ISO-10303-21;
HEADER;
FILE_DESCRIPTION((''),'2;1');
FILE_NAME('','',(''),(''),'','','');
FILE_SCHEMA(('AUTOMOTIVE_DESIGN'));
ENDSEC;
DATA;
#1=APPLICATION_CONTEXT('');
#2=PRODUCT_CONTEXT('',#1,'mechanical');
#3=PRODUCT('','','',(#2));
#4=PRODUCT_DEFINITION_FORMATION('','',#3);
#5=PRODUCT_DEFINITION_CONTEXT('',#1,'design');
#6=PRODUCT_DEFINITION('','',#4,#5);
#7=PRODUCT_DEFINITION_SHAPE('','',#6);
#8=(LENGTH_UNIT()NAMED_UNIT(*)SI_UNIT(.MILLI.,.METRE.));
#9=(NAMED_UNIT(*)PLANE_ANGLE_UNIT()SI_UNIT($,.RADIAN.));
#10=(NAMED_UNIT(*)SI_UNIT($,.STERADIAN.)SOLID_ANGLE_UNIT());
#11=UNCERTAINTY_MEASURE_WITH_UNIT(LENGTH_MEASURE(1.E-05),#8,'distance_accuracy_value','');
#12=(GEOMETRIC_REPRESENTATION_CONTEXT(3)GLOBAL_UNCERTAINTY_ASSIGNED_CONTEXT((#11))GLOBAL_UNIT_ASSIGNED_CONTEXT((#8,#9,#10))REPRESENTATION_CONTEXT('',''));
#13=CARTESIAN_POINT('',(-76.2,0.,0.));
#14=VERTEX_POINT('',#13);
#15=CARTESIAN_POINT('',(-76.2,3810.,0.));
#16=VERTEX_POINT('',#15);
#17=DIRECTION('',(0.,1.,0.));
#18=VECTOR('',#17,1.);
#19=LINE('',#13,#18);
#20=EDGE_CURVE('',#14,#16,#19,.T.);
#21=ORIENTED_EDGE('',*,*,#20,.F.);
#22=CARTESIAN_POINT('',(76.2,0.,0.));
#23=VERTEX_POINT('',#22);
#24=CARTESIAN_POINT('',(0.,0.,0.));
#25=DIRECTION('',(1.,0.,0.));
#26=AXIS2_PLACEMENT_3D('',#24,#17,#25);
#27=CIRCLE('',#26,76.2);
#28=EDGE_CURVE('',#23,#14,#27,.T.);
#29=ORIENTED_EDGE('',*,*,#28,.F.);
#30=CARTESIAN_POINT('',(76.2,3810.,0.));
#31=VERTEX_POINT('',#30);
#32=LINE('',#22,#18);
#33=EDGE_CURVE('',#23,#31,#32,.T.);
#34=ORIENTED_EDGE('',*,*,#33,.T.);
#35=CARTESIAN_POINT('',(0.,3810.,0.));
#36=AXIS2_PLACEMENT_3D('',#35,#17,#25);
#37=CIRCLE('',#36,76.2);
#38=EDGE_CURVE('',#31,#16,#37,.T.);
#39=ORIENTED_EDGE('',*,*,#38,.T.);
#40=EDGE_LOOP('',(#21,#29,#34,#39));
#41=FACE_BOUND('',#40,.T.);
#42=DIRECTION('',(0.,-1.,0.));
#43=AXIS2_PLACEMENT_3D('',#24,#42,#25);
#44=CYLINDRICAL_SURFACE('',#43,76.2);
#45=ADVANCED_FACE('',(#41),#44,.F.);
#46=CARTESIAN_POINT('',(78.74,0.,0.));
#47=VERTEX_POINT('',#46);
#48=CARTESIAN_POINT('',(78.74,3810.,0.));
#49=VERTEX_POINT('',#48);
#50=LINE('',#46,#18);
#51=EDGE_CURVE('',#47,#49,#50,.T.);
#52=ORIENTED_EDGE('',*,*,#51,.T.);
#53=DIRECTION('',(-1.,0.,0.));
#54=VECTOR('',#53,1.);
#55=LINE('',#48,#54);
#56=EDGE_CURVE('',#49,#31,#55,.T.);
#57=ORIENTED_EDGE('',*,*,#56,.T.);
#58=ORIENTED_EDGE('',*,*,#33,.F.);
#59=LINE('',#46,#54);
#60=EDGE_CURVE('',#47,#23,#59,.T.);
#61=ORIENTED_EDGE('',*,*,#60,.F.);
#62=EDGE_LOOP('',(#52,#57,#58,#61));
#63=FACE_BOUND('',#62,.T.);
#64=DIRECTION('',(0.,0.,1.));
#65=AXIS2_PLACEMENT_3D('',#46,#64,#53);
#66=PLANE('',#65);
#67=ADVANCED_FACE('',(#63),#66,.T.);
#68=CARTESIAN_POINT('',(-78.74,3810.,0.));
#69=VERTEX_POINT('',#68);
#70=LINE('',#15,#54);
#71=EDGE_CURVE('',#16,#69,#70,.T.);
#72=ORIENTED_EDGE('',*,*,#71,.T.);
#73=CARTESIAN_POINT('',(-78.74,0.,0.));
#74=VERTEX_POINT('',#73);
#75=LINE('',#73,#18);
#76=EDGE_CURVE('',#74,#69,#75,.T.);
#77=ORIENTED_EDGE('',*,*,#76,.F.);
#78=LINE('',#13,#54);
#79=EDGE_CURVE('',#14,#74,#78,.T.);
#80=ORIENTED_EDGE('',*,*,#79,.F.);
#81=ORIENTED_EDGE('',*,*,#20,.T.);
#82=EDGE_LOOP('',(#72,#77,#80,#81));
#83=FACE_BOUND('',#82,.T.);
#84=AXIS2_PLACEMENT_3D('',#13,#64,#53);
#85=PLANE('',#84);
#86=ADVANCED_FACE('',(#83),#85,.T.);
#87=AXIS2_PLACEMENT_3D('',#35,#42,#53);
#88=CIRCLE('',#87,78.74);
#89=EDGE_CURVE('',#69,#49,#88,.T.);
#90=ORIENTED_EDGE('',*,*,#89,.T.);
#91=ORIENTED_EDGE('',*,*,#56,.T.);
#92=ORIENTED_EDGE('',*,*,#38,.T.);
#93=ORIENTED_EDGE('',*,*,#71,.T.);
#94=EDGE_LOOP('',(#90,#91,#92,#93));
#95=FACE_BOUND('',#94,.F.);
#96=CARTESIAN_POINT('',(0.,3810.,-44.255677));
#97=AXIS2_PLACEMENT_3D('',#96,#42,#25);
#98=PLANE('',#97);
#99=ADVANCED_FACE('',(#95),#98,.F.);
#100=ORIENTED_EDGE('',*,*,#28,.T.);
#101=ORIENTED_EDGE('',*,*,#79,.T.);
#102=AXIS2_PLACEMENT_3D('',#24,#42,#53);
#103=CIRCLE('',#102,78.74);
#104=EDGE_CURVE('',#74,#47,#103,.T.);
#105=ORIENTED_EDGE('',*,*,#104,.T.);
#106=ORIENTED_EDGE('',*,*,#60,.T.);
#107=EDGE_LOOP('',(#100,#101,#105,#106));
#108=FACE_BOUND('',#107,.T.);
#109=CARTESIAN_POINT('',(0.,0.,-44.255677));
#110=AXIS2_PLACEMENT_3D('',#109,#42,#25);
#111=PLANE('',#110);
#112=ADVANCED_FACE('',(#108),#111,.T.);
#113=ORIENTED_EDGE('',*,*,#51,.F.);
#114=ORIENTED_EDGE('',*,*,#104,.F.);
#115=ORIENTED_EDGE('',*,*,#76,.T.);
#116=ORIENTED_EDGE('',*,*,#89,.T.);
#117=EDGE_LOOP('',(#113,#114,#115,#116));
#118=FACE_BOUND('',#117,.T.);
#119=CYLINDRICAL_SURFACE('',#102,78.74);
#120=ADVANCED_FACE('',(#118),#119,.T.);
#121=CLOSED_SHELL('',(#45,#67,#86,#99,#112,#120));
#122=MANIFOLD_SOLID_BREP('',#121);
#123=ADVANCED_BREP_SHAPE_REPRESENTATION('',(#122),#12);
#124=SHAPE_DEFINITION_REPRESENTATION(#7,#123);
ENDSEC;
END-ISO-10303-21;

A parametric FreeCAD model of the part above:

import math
import FreeCAD as App
import Part
import Sketcher
Q = App.Units.Quantity

doc = App.newDocument("Part")
body = doc.addObject("PartDesign::Body", "Body")

sketch1 = body.newObject("Sketcher::SketchObject", "Sketch")
sketch1.AttachmentSupport = (doc.getObject("XZ_Plane"), [""])
sketch1.MapMode = "FlatFace"
sketch1.addGeometry([
    Part.ArcOfCircle(Part.Circle(App.Vector(0, 0, 0), App.Vector(0, 0, 1), 76.2), math.radians(180), math.radians(360)),
    Part.LineSegment(App.Vector(-76.2, 0, 0), App.Vector(-78.7, 0, 0)),
    Part.ArcOfCircle(Part.Circle(App.Vector(0, 0, 0), App.Vector(0, 0, 1), 78.7), math.radians(180), math.radians(360)),
    Part.LineSegment(App.Vector(78.7, 0, 0), App.Vector(76.2, 0, 0)),
], False)
sketch1.addConstraint([
    Sketcher.Constraint("Coincident", 0, 1, 1, 1),
    Sketcher.Constraint("Coincident", 1, 2, 2, 1),
    Sketcher.Constraint("Coincident", 2, 2, 3, 1),
    Sketcher.Constraint("Coincident", 3, 2, 0, 2),
    Sketcher.Constraint("Horizontal", 1),
    Sketcher.Constraint("Horizontal", 3),
    Sketcher.Constraint("Coincident", 0, 3, -1, 1),
    Sketcher.Constraint("Coincident", 2, 3, -1, 1),
    Sketcher.Constraint("PointOnObject", 0, 1, -1),
    Sketcher.Constraint("PointOnObject", 2, 2, -1),
    Sketcher.Constraint("Radius", 0, Q("3 in")),
    Sketcher.Constraint("Radius", 2, Q("3.1 in")),
])
pad1 = body.newObject("PartDesign::Pad", "Pad")
pad1.Profile = sketch1
pad1.Length = Q("150 in")
pad1.Reversed = True

doc.recompute()
